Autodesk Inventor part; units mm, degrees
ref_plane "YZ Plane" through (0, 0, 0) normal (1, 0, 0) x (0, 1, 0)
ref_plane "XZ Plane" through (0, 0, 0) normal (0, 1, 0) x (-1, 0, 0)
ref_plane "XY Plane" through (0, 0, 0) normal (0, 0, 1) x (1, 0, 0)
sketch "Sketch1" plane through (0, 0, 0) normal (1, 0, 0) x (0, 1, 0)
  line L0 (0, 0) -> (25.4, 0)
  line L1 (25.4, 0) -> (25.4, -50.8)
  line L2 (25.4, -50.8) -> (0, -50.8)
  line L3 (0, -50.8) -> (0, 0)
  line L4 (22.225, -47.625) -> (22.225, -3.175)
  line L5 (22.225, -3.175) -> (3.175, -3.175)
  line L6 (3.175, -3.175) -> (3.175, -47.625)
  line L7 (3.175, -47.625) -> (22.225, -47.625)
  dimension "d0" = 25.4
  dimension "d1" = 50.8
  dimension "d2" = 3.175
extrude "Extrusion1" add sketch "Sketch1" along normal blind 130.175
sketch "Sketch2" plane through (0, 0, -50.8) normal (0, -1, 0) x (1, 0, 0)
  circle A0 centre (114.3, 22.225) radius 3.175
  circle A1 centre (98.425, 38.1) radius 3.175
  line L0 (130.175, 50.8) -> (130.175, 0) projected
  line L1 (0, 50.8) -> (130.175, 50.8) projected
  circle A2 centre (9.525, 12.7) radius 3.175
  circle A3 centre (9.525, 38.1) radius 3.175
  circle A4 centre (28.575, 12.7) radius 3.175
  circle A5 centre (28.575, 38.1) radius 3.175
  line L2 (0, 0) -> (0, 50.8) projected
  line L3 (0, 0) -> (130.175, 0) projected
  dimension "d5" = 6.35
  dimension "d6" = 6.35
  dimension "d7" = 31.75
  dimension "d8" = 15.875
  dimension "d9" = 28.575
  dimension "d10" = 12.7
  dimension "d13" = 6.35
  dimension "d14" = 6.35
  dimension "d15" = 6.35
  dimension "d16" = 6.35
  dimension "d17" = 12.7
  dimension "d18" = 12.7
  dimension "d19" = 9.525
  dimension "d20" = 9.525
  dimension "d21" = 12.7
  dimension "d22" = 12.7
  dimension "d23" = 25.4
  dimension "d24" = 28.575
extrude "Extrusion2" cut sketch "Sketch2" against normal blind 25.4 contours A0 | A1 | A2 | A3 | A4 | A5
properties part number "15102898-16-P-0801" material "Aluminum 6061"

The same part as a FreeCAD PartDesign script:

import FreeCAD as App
import Part
import Sketcher
Q = App.Units.Quantity

doc = App.newDocument("Part")
body = doc.addObject("PartDesign::Body", "Body")

sketch1 = body.newObject("Sketcher::SketchObject", "Sketch")
sketch1.AttachmentSupport = (doc.getObject("YZ_Plane"), [""])
sketch1.MapMode = "FlatFace"
sketch1.addGeometry([
    Part.LineSegment(App.Vector(25, 0, 0), App.Vector(0, 0, 0)),
    Part.LineSegment(App.Vector(0, 0, 0), App.Vector(0, -51, 0)),
    Part.LineSegment(App.Vector(0, -51, 0), App.Vector(25, -51, 0)),
    Part.LineSegment(App.Vector(25, -51, 0), App.Vector(25, 0, 0)),
    Part.LineSegment(App.Vector(22, -3, 0), App.Vector(22, -48, 0)),
    Part.LineSegment(App.Vector(22, -48, 0), App.Vector(3, -48, 0)),
    Part.LineSegment(App.Vector(3, -48, 0), App.Vector(3, -3, 0)),
    Part.LineSegment(App.Vector(3, -3, 0), App.Vector(22, -3, 0)),
], False)
sketch1.addConstraint([
    Sketcher.Constraint("Coincident", 0, 2, 1, 1),
    Sketcher.Constraint("Coincident", 1, 2, 2, 1),
    Sketcher.Constraint("Coincident", 2, 2, 3, 1),
    Sketcher.Constraint("Coincident", 3, 2, 0, 1),
    Sketcher.Constraint("Coincident", 4, 2, 5, 1),
    Sketcher.Constraint("Coincident", 5, 2, 6, 1),
    Sketcher.Constraint("Coincident", 6, 2, 7, 1),
    Sketcher.Constraint("Coincident", 7, 2, 4, 1),
    Sketcher.Constraint("Horizontal", 0),
    Sketcher.Constraint("Vertical", 1),
    Sketcher.Constraint("Horizontal", 2),
    Sketcher.Constraint("Vertical", 3),
    Sketcher.Constraint("Vertical", 4),
    Sketcher.Constraint("Horizontal", 5),
    Sketcher.Constraint("Vertical", 6),
    Sketcher.Constraint("Horizontal", 7),
    Sketcher.Constraint("Coincident", 0, 2, -1, 1),
    Sketcher.Constraint("DistanceX", 0, 2, 0, 1, Q("1 in")),
    Sketcher.Constraint("DistanceY", 1, 2, 1, 1, Q("2 in")),
    Sketcher.Constraint("DistanceX", -1, 1, 5, 2, Q("0.125 in")),
    Sketcher.Constraint("DistanceY", 6, 2, -1, 1, Q("0.125 in")),
    Sketcher.Constraint("DistanceX", 4, 2, 2, 2, Q("0.125 in")),
    Sketcher.Constraint("DistanceY", 2, 2, 4, 2, Q("0.125 in")),
])
pad1 = body.newObject("PartDesign::Pad", "Pad")
pad1.Profile = sketch1
pad1.Length = Q("5.125 in")

sketch2 = body.newObject("Sketcher::SketchObject", "Sketch001")
sketch2.AttachmentSupport = (doc.getObject("XZ_Plane"), [""])
sketch2.MapMode = "FlatFace"
sketch2.addGeometry([
    Part.Circle(App.Vector(114.3, -28.6, 0), App.Vector(0, 0, 1), 3.2),
    Part.Circle(App.Vector(98.4, -12.7, 0), App.Vector(0, 0, 1), 3.2),
    Part.Circle(App.Vector(9.5, -38.1, 0), App.Vector(0, 0, 1), 3.2),
    Part.Circle(App.Vector(9.5, -12.7, 0), App.Vector(0, 0, 1), 3.2),
    Part.Circle(App.Vector(28.6, -38.1, 0), App.Vector(0, 0, 1), 3.2),
    Part.Circle(App.Vector(28.6, -12.7, 0), App.Vector(0, 0, 1), 3.2),
], False)
sketch2.addConstraint([
    Sketcher.Constraint("Equal", 0, 1),
    Sketcher.Constraint("Equal", 1, 2),
    Sketcher.Constraint("Equal", 2, 3),
    Sketcher.Constraint("Equal", 3, 4),
    Sketcher.Constraint("Equal", 4, 5),
    Sketcher.Constraint("Horizontal", 1, 3, 3, 3),
    Sketcher.Constraint("Horizontal", 2, 3, 4, 3),
    Sketcher.Constraint("Horizontal", 3, 3, 5, 3),
    Sketcher.Constraint("Vertical", 2, 3, 3, 3),
    Sketcher.Constraint("Vertical", 4, 3, 5, 3),
    Sketcher.Constraint("Diameter", 0, Q("0.25 in")),
    Sketcher.Constraint("DistanceY", 2, 3, 1, 3, Q("1 in")),
    Sketcher.Constraint("DistanceY", 1, 3, -1, 1, Q("0.5 in")),
    Sketcher.Constraint("DistanceY", 0, 3, -1, 1, Q("1.125 in")),
    Sketcher.Constraint("DistanceX", -1, 1, 2, 3, Q("0.375 in")),
    Sketcher.Constraint("DistanceX", -1, 1, 4, 3, Q("1.125 in")),
    Sketcher.Constraint("DistanceX", 1, 3, 0, 3, Q("0.625 in")),
    Sketcher.Constraint("DistanceX", -1, 1, 0, 3, Q("4.5 in")),
])
pocket1 = body.newObject("PartDesign::Pocket", "Pocket")
pocket1.Profile = sketch2
pocket1.Length = Q("1 in")

doc.recompute()
